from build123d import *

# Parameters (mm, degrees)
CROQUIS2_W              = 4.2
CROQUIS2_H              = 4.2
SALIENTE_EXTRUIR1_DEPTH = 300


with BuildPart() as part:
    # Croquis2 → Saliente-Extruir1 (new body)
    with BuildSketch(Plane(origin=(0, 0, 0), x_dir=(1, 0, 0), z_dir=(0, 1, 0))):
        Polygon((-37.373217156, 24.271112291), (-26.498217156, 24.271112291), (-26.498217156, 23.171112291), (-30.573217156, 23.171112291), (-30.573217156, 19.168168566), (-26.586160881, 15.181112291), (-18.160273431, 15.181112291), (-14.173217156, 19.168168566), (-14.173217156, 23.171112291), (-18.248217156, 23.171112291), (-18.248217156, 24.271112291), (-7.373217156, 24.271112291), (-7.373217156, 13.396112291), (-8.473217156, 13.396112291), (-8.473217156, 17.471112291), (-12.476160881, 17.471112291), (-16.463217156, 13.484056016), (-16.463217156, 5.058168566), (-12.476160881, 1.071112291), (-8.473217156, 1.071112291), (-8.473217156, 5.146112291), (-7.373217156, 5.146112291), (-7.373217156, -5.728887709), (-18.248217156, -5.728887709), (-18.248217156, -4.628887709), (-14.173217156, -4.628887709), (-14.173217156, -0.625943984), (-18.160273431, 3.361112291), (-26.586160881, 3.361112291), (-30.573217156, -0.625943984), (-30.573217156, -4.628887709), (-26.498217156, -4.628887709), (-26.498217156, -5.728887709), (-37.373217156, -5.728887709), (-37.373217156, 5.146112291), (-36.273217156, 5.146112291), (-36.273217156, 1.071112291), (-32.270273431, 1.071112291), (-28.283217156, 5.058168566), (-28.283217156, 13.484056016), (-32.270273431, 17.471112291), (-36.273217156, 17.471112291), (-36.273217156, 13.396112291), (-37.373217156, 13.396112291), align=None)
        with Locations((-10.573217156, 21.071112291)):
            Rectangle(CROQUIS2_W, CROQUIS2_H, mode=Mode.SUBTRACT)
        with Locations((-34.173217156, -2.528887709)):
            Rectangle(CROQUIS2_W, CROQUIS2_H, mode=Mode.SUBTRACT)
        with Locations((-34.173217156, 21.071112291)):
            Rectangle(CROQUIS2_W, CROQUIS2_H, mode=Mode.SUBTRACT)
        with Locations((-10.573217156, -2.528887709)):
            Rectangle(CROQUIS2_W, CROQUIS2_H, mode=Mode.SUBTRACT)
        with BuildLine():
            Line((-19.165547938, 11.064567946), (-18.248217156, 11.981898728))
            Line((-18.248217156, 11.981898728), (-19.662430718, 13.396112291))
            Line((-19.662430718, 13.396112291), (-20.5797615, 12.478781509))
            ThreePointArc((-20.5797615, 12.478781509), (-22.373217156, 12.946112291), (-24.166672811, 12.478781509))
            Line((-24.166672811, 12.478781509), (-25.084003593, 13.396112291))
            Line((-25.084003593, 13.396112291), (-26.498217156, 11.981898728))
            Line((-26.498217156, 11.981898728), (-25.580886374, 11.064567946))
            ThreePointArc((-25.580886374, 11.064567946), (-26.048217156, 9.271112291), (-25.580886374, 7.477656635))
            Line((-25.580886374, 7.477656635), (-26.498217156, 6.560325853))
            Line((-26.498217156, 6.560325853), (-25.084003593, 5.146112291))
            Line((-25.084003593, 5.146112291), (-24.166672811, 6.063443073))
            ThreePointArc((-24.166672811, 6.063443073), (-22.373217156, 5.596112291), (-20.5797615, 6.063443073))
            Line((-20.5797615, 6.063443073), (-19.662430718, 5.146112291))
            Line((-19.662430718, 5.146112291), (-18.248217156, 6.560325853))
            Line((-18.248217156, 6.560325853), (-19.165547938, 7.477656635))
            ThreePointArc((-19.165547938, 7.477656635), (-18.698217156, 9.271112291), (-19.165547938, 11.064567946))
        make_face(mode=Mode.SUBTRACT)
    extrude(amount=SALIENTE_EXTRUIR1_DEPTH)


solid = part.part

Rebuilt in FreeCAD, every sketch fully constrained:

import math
import FreeCAD as App
import Part
import Sketcher


def add_polygon(sketch, points):
    """Adds a closed chain of lines whose ends are joined by coincident constraints."""
    first, n = sketch.GeometryCount, len(points)
    for a, b in zip(points, points[1:] + points[:1]):
        sketch.addGeometry(Part.LineSegment(App.Vector(*a, 0), App.Vector(*b, 0)), False)
    for i in range(n):
        sketch.addConstraint(Sketcher.Constraint("Coincident", first + i, 2, first + (i + 1) % n, 1))

doc = App.newDocument("Part")
body = doc.addObject("PartDesign::Body", "Body")

# Sketch on XZ plane
sketch1 = doc.addObject("Sketcher::SketchObject", "Sketch")
body.addObject(sketch1)
sketch1.AttachmentSupport = (doc.XZ_Plane, [""])
sketch1.MapMode = "FlatFace"
add_polygon(sketch1, [(-26.498217, -24.271112), (-37.373217, -24.271112), (-37.373217, -13.396112), (-36.273217, -13.396112), (-36.273217, -17.471112), (-32.270273, -17.471112), (-28.283217, -13.484056), (-28.283217, -5.058169), (-32.270273, -1.071112), (-36.273217, -1.071112), (-36.273217, -5.146112), (-37.373217, -5.146112), (-37.373217, 5.728888), (-26.498217, 5.728888), (-26.498217, 4.628888), (-30.573217, 4.628888), (-30.573217, 0.625944), (-26.586161, -3.361112), (-18.160273, -3.361112), (-14.173217, 0.625944), (-14.173217, 4.628888), (-18.248217, 4.628888), (-18.248217, 5.728888), (-7.373217, 5.728888), (-7.373217, -5.146112), (-8.473217, -5.146112), (-8.473217, -1.071112), (-12.476161, -1.071112), (-16.463217, -5.058169), (-16.463217, -13.484056), (-12.476161, -17.471112), (-8.473217, -17.471112), (-8.473217, -13.396112), (-7.373217, -13.396112), (-7.373217, -24.271112), (-18.248217, -24.271112), (-18.248217, -23.171112), (-14.173217, -23.171112), (-14.173217, -19.168169), (-18.160273, -15.181112), (-26.586161, -15.181112), (-30.573217, -19.168169), (-30.573217, -23.171112), (-26.498217, -23.171112)])  # lines 0-43
add_polygon(sketch1, [(-12.673217, 4.628888), (-12.673217, 0.428888), (-8.473217, 0.428888), (-8.473217, 4.628888)])  # lines 44-47
add_polygon(sketch1, [(-36.273217, 4.628888), (-36.273217, 0.428888), (-32.073217, 0.428888), (-32.073217, 4.628888)])  # lines 48-51
sketch1.addGeometry(Part.ArcOfCircle(Part.Circle(App.Vector(-22.373217, -9.271112, 0), App.Vector(0, 0, 1), 3.675), math.radians(-29.210206), math.radians(29.210206)), False)  # 52
sketch1.addGeometry(Part.LineSegment(App.Vector(-19.165548, -7.477657, 0), App.Vector(-18.248217, -6.560326, 0)), False)  # 53
sketch1.addGeometry(Part.LineSegment(App.Vector(-18.248217, -6.560326, 0), App.Vector(-19.662431, -5.146112, 0)), False)  # 54
sketch1.addGeometry(Part.LineSegment(App.Vector(-19.662431, -5.146112, 0), App.Vector(-20.579762, -6.063443, 0)), False)  # 55
sketch1.addGeometry(Part.ArcOfCircle(Part.Circle(App.Vector(-22.373217, -9.271112, 0), App.Vector(0, 0, 1), 3.675), math.radians(60.789794), math.radians(119.210206)), False)  # 56
sketch1.addGeometry(Part.LineSegment(App.Vector(-24.166673, -6.063443, 0), App.Vector(-25.084004, -5.146112, 0)), False)  # 57
sketch1.addGeometry(Part.LineSegment(App.Vector(-25.084004, -5.146112, 0), App.Vector(-26.498217, -6.560326, 0)), False)  # 58
sketch1.addGeometry(Part.LineSegment(App.Vector(-26.498217, -6.560326, 0), App.Vector(-25.580886, -7.477657, 0)), False)  # 59
sketch1.addGeometry(Part.ArcOfCircle(Part.Circle(App.Vector(-22.373217, -9.271112, 0), App.Vector(0, 0, 1), 3.675), math.radians(150.789794), math.radians(209.210206)), False)  # 60
sketch1.addGeometry(Part.LineSegment(App.Vector(-25.580886, -11.064568, 0), App.Vector(-26.498217, -11.981899, 0)), False)  # 61
sketch1.addGeometry(Part.LineSegment(App.Vector(-26.498217, -11.981899, 0), App.Vector(-25.084004, -13.396112, 0)), False)  # 62
sketch1.addGeometry(Part.LineSegment(App.Vector(-25.084004, -13.396112, 0), App.Vector(-24.166673, -12.478782, 0)), False)  # 63
sketch1.addGeometry(Part.ArcOfCircle(Part.Circle(App.Vector(-22.373217, -9.271112, 0), App.Vector(0, 0, 1), 3.675), math.radians(-119.210206), math.radians(-60.789794)), False)  # 64
sketch1.addGeometry(Part.LineSegment(App.Vector(-20.579762, -12.478782, 0), App.Vector(-19.662431, -13.396112, 0)), False)  # 65
sketch1.addGeometry(Part.LineSegment(App.Vector(-19.662431, -13.396112, 0), App.Vector(-18.248217, -11.981899, 0)), False)  # 66
sketch1.addGeometry(Part.LineSegment(App.Vector(-18.248217, -11.981899, 0), App.Vector(-19.165548, -11.064568, 0)), False)  # 67
add_polygon(sketch1, [(-12.673217, -18.971112), (-12.673217, -23.171112), (-8.473217, -23.171112), (-8.473217, -18.971112)])  # lines 68-71
add_polygon(sketch1, [(-36.273217, -18.971112), (-36.273217, -23.171112), (-32.073217, -23.171112), (-32.073217, -18.971112)])  # lines 72-75
sketch1.addConstraint([
    Sketcher.Constraint("Coincident", 52, 2, 53, 1),
    Sketcher.Constraint("Coincident", 53, 2, 54, 1),
    Sketcher.Constraint("Coincident", 54, 2, 55, 1),
    Sketcher.Constraint("Coincident", 55, 2, 56, 1),
    Sketcher.Constraint("Coincident", 56, 2, 57, 1),
    Sketcher.Constraint("Coincident", 57, 2, 58, 1),
    Sketcher.Constraint("Coincident", 58, 2, 59, 1),
    Sketcher.Constraint("Coincident", 59, 2, 60, 1),
    Sketcher.Constraint("Coincident", 60, 2, 61, 1),
    Sketcher.Constraint("Coincident", 61, 2, 62, 1),
    Sketcher.Constraint("Coincident", 62, 2, 63, 1),
    Sketcher.Constraint("Coincident", 63, 2, 64, 1),
    Sketcher.Constraint("Coincident", 64, 2, 65, 1),
    Sketcher.Constraint("Coincident", 65, 2, 66, 1),
    Sketcher.Constraint("Coincident", 66, 2, 67, 1),
    Sketcher.Constraint("Coincident", 67, 2, 52, 1),
    Sketcher.Constraint("Horizontal", 0),
    Sketcher.Constraint("Vertical", 1),
    Sketcher.Constraint("Horizontal", 2),
    Sketcher.Constraint("Vertical", 3),
    Sketcher.Constraint("Horizontal", 4),
    Sketcher.Constraint("Vertical", 6),
    Sketcher.Constraint("Horizontal", 8),
    Sketcher.Constraint("Vertical", 9),
    Sketcher.Constraint("Horizontal", 10),
    Sketcher.Constraint("Vertical", 11),
    Sketcher.Constraint("Horizontal", 12),
    Sketcher.Constraint("Vertical", 13),
    Sketcher.Constraint("Horizontal", 14),
    Sketcher.Constraint("Vertical", 15),
    Sketcher.Constraint("Horizontal", 17),
    Sketcher.Constraint("Vertical", 19),
    Sketcher.Constraint("Horizontal", 20),
    Sketcher.Constraint("Vertical", 21),
    Sketcher.Constraint("Horizontal", 22),
    Sketcher.Constraint("Vertical", 23),
    Sketcher.Constraint("Horizontal", 24),
    Sketcher.Constraint("Vertical", 25),
    Sketcher.Constraint("Horizontal", 26),
    Sketcher.Constraint("Vertical", 28),
    Sketcher.Constraint("Horizontal", 30),
    Sketcher.Constraint("Vertical", 31),
    Sketcher.Constraint("Horizontal", 32),
    Sketcher.Constraint("Vertical", 33),
    Sketcher.Constraint("Horizontal", 34),
    Sketcher.Constraint("Vertical", 35),
    Sketcher.Constraint("Horizontal", 36),
    Sketcher.Constraint("Vertical", 37),
    Sketcher.Constraint("Horizontal", 39),
    Sketcher.Constraint("Vertical", 41),
    Sketcher.Constraint("Horizontal", 42),
    Sketcher.Constraint("Vertical", 43),
    Sketcher.Constraint("Vertical", 44),
    Sketcher.Constraint("Horizontal", 45),
    Sketcher.Constraint("Vertical", 46),
    Sketcher.Constraint("Horizontal", 47),
    Sketcher.Constraint("Vertical", 48),
    Sketcher.Constraint("Horizontal", 49),
    Sketcher.Constraint("Vertical", 50),
    Sketcher.Constraint("Horizontal", 51),
    Sketcher.Constraint("Vertical", 68),
    Sketcher.Constraint("Horizontal", 69),
    Sketcher.Constraint("Vertical", 70),
    Sketcher.Constraint("Horizontal", 71),
    Sketcher.Constraint("Vertical", 72),
    Sketcher.Constraint("Horizontal", 73),
    Sketcher.Constraint("Vertical", 74),
    Sketcher.Constraint("Horizontal", 75),
    Sketcher.Constraint("Coincident", 56, 3, 52, 3),
    Sketcher.Constraint("Coincident", 60, 3, 52, 3),
    Sketcher.Constraint("Coincident", 64, 3, 52, 3),
    Sketcher.Constraint("Equal", 52, 56),
    Sketcher.Constraint("Equal", 56, 60),
    Sketcher.Constraint("Equal", 60, 64),
    Sketcher.Constraint("Perpendicular", 5, 7),
    Sketcher.Constraint("Parallel", 7, 16),
    Sketcher.Constraint("Perpendicular", 16, 18),
    Sketcher.Constraint("Parallel", 18, 27),
    Sketcher.Constraint("Perpendicular", 27, 29),
    Sketcher.Constraint("Parallel", 29, 38),
    Sketcher.Constraint("Perpendicular", 38, 40),
    Sketcher.Constraint("Parallel", 40, 53),
    Sketcher.Constraint("Perpendicular", 53, 54),
    Sketcher.Constraint("Perpendicular", 54, 55),
    Sketcher.Constraint("Perpendicular", 55, 57),
    Sketcher.Constraint("Perpendicular", 57, 58),
    Sketcher.Constraint("Perpendicular", 58, 59),
    Sketcher.Constraint("Perpendicular", 59, 61),
    Sketcher.Constraint("Perpendicular", 61, 62),
    Sketcher.Constraint("Perpendicular", 62, 63),
    Sketcher.Constraint("Perpendicular", 63, 65),
    Sketcher.Constraint("Perpendicular", 65, 66),
    Sketcher.Constraint("Perpendicular", 66, 67),
    Sketcher.Constraint("Horizontal", 15, 2, 18, 2),
    Sketcher.Constraint("Horizontal", 14, 2, 19, 2),
    Sketcher.Constraint("Horizontal", 12, 2, 21, 2),
    Sketcher.Constraint("Horizontal", 10, 2, 23, 2),
    Sketcher.Constraint("Horizontal", 8, 2, 25, 2),
    Sketcher.Constraint("Horizontal", 6, 2, 27, 2),
    Sketcher.Constraint("Horizontal", 5, 2, 28, 2),
    Sketcher.Constraint("Horizontal", 4, 2, 29, 2),
    Sketcher.Constraint("Horizontal", 2, 2, 31, 2),
    Sketcher.Constraint("Horizontal", 0, 2, 33, 2),
    Sketcher.Constraint("Horizontal", 37, 2, 40, 2),
    Sketcher.Constraint("Horizontal", 36, 2, 41, 2),
    Sketcher.Constraint("Horizontal", 20, 2, 46, 2),
    Sketcher.Constraint("Horizontal", 45, 2, 48, 2),
    Sketcher.Constraint("Horizontal", 47, 2, 50, 2),
    Sketcher.Constraint("Horizontal", 24, 2, 54, 2),
    Sketcher.Constraint("Horizontal", 55, 2, 56, 2),
    Sketcher.Constraint("Horizontal", 54, 2, 57, 2),
    Sketcher.Constraint("Horizontal", 53, 2, 58, 2),
    Sketcher.Constraint("Horizontal", 52, 2, 59, 2),
    Sketcher.Constraint("Horizontal", 32, 2, 62, 2),
    Sketcher.Constraint("Horizontal", 63, 2, 64, 2),
    Sketcher.Constraint("Horizontal", 62, 2, 65, 2),
    Sketcher.Constraint("Horizontal", 61, 2, 66, 2),
    Sketcher.Constraint("Horizontal", 42, 2, 68, 2),
    Sketcher.Constraint("Horizontal", 69, 2, 72, 2),
    Sketcher.Constraint("Horizontal", 71, 2, 74, 2),
    Sketcher.Constraint("Vertical", 4, 2, 7, 2),
    Sketcher.Constraint("Vertical", 3, 2, 8, 2),
    Sketcher.Constraint("Vertical", 1, 2, 10, 2),
    Sketcher.Constraint("Vertical", 25, 2, 30, 2),
    Sketcher.Constraint("Vertical", 23, 2, 32, 2),
    Sketcher.Constraint("Vertical", 21, 2, 34, 2),
    Sketcher.Constraint("Vertical", 19, 2, 36, 2),
    Sketcher.Constraint("Vertical", 17, 2, 38, 2),
    Sketcher.Constraint("Vertical", 16, 2, 39, 2),
    Sketcher.Constraint("Vertical", 13, 2, 42, 2),
    Sketcher.Constraint("Vertical", 31, 2, 45, 2),
    Sketcher.Constraint("Vertical", 9, 2, 48, 2),
    Sketcher.Constraint("Vertical", 35, 2, 53, 2),
    Sketcher.Constraint("Vertical", 43, 2, 58, 2),
    Sketcher.Constraint("Vertical", 59, 2, 60, 2),
    Sketcher.Constraint("Vertical", 58, 2, 61, 2),
    Sketcher.Constraint("Vertical", 57, 2, 62, 2),
    Sketcher.Constraint("Vertical", 47, 2, 68, 2),
    Sketcher.Constraint("Vertical", 46, 2, 69, 2),
    Sketcher.Constraint("Vertical", 51, 2, 72, 2),
    Sketcher.Constraint("Vertical", 50, 2, 73, 2),
    Sketcher.Constraint("Equal", 14, 20),
    Sketcher.Constraint("Equal", 12, 22),
    Sketcher.Constraint("Equal", 10, 24),
    Sketcher.Constraint("Equal", 8, 26),
    Sketcher.Constraint("Equal", 47, 49),
    Sketcher.Constraint("Equal", 34, 1),
    Sketcher.Constraint("Equal", 42, 3),
    Sketcher.Constraint("Equal", 39, 6),
    Sketcher.Constraint("Equal", 3, 9),
    Sketcher.Constraint("Equal", 1, 11),
    Sketcher.Constraint("Equal", 32, 13),
    Sketcher.Constraint("Equal", 30, 15),
    Sketcher.Constraint("Equal", 21, 35),
    Sketcher.Constraint("Equal", 19, 37),
    Sketcher.Constraint("Equal", 75, 44),
    Sketcher.Constraint("Equal", 50, 68),
    Sketcher.Constraint("Equal", 7, 16),
    Sketcher.Constraint("Distance", 54, 2.0),
    Sketcher.Constraint("DistanceX", 2, 1, 2, 2, 1.1),
    Sketcher.Constraint("DistanceX", 45, 1, 45, 2, 4.2),
    Sketcher.Constraint("Radius", 52, 3.675),
    Sketcher.Constraint("DistanceX", 0, 2, 0, 1, 10.875),
    Sketcher.Constraint("DistanceX", 14, 2, 14, 1, 4.075),
    Sketcher.Constraint("Distance", 53, 1.297302),
    Sketcher.Constraint("DistanceY", 61, 2, -1, 1, 11.981899),
    Sketcher.Constraint("Distance", 5, 5.638549),
    Sketcher.Constraint("DistanceX", 4, 1, 4, 2, 4.002944),
    Sketcher.Constraint("DistanceX", 16, 2, -1, 1, 26.586161),
])
pad1 = doc.addObject("PartDesign::Pad", "Pad")
body.addObject(pad1)
pad1.Profile = sketch1
pad1.Length = 300
pad1.Reversed = True

doc.recompute()
